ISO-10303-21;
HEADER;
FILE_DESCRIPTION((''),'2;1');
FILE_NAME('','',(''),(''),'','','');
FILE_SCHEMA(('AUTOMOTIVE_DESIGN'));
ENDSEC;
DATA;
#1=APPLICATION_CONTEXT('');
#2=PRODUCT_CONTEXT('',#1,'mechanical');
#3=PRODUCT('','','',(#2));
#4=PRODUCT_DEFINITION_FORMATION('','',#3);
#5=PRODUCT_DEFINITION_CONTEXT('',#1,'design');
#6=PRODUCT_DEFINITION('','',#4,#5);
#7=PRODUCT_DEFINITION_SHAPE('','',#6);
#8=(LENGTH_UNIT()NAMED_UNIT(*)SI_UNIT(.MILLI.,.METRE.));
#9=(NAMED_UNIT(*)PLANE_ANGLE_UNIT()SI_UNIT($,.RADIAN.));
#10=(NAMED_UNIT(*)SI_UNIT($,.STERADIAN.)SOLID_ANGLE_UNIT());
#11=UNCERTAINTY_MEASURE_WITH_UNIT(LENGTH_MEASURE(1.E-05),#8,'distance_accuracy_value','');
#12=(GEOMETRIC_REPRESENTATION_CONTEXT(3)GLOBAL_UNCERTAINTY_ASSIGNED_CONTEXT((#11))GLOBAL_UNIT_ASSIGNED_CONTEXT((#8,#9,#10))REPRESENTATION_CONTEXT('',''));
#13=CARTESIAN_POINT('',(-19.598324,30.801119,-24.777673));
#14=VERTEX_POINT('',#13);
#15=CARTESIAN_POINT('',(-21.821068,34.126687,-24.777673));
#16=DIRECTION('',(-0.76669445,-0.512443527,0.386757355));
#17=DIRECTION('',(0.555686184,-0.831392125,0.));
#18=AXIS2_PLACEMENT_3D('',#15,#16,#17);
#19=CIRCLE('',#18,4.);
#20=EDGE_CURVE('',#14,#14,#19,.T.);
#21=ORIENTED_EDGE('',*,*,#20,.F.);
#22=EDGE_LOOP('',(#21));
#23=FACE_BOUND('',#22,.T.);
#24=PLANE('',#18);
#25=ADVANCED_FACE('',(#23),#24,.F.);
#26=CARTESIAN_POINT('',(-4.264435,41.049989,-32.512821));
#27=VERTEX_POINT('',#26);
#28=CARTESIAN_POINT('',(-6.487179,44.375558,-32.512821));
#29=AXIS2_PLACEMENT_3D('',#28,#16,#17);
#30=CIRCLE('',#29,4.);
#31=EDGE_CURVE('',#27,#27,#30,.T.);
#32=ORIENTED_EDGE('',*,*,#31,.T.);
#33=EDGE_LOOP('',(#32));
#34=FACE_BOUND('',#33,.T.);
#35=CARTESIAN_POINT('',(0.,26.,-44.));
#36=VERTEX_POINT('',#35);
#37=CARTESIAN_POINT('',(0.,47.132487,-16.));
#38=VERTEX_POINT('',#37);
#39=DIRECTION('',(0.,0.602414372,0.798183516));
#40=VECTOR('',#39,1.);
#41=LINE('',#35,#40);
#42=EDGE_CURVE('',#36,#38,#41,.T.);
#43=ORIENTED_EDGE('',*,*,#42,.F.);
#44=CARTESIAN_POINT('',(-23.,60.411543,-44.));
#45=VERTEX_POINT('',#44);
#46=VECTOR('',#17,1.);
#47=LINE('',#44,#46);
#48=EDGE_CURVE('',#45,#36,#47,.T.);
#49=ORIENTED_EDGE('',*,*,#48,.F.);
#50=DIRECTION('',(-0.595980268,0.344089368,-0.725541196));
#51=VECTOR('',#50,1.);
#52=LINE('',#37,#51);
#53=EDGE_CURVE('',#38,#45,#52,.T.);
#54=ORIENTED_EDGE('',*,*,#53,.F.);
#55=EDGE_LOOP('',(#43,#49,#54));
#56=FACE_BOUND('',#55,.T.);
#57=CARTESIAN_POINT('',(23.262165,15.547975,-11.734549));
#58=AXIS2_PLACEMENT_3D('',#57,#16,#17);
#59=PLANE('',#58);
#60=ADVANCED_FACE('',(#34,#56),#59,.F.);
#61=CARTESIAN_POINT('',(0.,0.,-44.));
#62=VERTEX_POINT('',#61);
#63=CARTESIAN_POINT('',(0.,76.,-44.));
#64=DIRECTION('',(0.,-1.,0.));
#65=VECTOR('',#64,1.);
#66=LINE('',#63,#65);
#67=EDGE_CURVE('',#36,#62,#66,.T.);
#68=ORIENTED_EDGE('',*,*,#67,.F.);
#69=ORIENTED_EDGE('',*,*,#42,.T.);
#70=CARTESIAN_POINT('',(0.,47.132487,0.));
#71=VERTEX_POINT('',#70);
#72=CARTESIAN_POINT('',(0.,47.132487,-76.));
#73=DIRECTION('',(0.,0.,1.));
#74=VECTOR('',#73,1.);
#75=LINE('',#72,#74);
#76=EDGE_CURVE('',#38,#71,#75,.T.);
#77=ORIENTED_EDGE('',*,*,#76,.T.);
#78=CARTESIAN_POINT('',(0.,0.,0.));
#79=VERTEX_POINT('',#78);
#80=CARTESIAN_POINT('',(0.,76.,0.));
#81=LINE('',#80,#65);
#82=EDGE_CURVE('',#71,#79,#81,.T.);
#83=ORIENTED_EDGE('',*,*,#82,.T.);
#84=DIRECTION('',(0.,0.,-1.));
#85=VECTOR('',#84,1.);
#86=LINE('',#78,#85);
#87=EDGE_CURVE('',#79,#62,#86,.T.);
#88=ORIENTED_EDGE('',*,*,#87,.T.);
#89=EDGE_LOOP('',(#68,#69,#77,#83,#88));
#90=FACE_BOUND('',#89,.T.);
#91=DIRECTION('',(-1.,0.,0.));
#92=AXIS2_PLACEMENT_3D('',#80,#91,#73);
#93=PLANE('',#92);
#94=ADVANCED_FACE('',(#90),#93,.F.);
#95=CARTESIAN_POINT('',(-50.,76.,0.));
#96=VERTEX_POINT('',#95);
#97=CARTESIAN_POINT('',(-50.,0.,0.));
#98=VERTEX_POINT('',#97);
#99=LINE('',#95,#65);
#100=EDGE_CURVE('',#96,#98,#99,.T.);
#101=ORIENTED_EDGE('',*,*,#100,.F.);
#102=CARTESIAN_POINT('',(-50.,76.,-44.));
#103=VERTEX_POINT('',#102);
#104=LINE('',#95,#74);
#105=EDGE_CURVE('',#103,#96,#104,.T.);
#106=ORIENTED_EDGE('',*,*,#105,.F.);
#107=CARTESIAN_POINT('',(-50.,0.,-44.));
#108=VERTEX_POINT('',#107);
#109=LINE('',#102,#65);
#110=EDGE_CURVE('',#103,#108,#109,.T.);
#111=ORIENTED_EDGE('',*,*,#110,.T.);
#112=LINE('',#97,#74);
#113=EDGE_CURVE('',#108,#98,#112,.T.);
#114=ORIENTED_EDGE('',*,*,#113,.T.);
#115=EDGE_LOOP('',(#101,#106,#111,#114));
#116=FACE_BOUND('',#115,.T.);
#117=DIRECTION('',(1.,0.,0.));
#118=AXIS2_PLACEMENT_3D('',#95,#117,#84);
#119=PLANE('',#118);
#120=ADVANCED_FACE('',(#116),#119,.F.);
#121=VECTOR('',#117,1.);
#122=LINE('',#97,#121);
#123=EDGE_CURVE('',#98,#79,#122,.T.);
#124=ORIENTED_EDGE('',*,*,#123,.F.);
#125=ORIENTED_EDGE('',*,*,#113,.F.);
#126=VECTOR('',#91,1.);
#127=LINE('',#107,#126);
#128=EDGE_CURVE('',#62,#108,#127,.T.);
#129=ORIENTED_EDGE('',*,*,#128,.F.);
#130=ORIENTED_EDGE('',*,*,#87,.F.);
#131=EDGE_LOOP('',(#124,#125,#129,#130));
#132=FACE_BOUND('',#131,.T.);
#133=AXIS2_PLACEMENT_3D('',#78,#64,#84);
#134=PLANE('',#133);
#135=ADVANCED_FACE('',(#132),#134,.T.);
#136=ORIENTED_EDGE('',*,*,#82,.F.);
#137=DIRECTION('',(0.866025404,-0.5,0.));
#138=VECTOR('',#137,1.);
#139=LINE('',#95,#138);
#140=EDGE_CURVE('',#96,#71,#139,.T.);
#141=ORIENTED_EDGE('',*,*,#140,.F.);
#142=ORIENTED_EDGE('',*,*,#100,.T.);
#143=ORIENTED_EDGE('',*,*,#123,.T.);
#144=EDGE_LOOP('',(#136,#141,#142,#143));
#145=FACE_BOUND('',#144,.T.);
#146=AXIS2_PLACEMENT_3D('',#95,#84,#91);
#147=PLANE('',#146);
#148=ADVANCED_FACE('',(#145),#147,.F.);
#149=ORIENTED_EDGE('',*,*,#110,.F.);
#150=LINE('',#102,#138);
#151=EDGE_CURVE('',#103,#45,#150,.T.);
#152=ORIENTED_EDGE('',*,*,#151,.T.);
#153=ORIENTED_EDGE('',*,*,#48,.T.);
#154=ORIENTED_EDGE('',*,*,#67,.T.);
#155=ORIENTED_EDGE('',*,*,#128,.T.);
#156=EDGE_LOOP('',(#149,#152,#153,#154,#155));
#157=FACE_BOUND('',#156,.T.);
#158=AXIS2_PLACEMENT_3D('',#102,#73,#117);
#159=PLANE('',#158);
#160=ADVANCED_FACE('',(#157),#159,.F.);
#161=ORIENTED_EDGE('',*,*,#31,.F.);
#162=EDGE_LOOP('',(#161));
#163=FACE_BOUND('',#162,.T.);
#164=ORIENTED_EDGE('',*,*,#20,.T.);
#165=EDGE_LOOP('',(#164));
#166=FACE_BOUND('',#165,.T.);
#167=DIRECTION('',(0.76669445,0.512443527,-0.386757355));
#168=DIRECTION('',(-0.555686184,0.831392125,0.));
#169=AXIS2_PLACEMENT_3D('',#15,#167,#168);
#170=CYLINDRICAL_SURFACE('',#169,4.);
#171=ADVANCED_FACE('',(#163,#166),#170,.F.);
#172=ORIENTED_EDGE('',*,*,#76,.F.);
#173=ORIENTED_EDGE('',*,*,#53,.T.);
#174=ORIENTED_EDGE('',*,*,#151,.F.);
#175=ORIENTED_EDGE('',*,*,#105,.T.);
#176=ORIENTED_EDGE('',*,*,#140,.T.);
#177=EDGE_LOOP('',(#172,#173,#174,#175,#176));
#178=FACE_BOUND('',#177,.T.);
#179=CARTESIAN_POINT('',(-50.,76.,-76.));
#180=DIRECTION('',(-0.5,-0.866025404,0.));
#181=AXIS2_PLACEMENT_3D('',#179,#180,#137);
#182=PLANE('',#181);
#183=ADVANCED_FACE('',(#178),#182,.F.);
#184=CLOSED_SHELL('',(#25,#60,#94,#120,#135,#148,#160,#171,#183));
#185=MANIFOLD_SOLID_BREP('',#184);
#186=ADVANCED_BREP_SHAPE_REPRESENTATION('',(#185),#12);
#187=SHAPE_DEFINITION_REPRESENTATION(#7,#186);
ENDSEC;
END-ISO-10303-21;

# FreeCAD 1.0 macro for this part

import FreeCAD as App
import Part
import Sketcher

V = App.Vector
Q = App.Units.Quantity


def add_polygon(sketch, points):
    """Adds a closed chain of lines whose ends are joined by coincident constraints."""
    first, n = sketch.GeometryCount, len(points)
    for a, b in zip(points, points[1:] + points[:1]):
        sketch.addGeometry(Part.LineSegment(App.Vector(*a, 0), App.Vector(*b, 0)), False)
    for i in range(n):
        sketch.addConstraint(Sketcher.Constraint("Coincident", first + i, 2, first + (i + 1) % n, 1))

doc = App.newDocument("Part")
body = doc.addObject("PartDesign::Body", "Body")

# Sketch on XZ plane
sketch1 = body.newObject("Sketcher::SketchObject", "Sketch")
sketch1.AttachmentSupport = (doc.getObject("XZ_Plane"), [""])
sketch1.MapMode = "FlatFace"
add_polygon(sketch1, [(-50, -44), (-50, 0), (0, 0), (0, -44)])  # lines 0-3
sketch1.addConstraint([
    Sketcher.Constraint("Vertical", 0),
    Sketcher.Constraint("Horizontal", 1),
    Sketcher.Constraint("Vertical", 2),
    Sketcher.Constraint("Horizontal", 3),
    Sketcher.Constraint("Coincident", 1, 2, -1, 1),
    Sketcher.Constraint("DistanceX", 1, 1, 1, 2, 50.0),
    Sketcher.Constraint("DistanceY", 0, 1, 0, 2, 44.0),
])
pad1 = body.newObject("PartDesign::Pad", "Pad")
pad1.Profile = sketch1
pad1.Length = 76
pad1.Reversed = True

# Sketch on XY plane
sketch2 = body.newObject("Sketcher::SketchObject", "Sketch001")
sketch2.AttachmentSupport = (doc.getObject("XY_Plane"), [""])
sketch2.MapMode = "FlatFace"
add_polygon(sketch2, [(-50, 76), (0, 47), (0, 76)])  # lines 0-2
sketch2.addConstraint([
    Sketcher.Constraint("Vertical", 1),
    Sketcher.Constraint("Horizontal", 2),
    Sketcher.Constraint("PointOnObject", 0, 2, -2),
    Sketcher.Constraint("DistanceX", 2, 2, 2, 1, 50.0),
    Sketcher.Constraint("Angle", 0, Q("-30 deg")),
    Sketcher.Constraint("DistanceY", -1, 1, 1, 2, 76.0),
])
pocket1 = body.newObject("PartDesign::Pocket", "Pocket")
pocket1.Profile = sketch2
pocket1.Length = 76

# Sketch on an angled plane
sketch3 = body.newObject("Sketcher::SketchObject", "Sketch002")
sketch3.Placement = App.Placement(V(23.262165, 15.547975, -11.734549), App.Rotation(V(0.321547019, 0.214915719, 0.922181516), V(-0.555686184, 0.831392125, 0), V(-0.76669445, -0.512443527, 0.386757355), "ZXY"))
add_polygon(sketch3, [(-5, 39), (-35, 63), (-35, 22)])  # lines 0-2
sketch3.addConstraint([
    Sketcher.Constraint("Vertical", 1),
    Sketcher.Constraint("Distance", 0, 38.591882),
    Sketcher.Constraint("DistanceY", 1, 2, 1, 1, 41.390268),
    Sketcher.Constraint("DistanceX", 0, 2, -1, 1, 34.988178),
    Sketcher.Constraint("DistanceY", -1, 1, 2, 2, 39.185578),
    Sketcher.Constraint("Distance", 2, 35.079652),
])
pocket2 = body.newObject("PartDesign::Pocket", "Pocket001")
pocket2.Profile = sketch3
pocket2.Length = 76

# Sketch on an angled plane
sketch4 = body.newObject("Sketcher::SketchObject", "Sketch003")
sketch4.Placement = App.Placement(V(23.262165, 15.547975, -11.734549), App.Rotation(V(0.321547019, 0.214915719, 0.922181516), V(-0.555686184, 0.831392125, 0), V(-0.76669445, -0.512443527, 0.386757355), "ZXY"))
sketch4.addGeometry(Part.Circle(V(-22.5, 40.5, 0), V(0, 0, 1), 4), False)
sketch4.addConstraint([
    Sketcher.Constraint("Diameter", 0, 8.0),
    Sketcher.Constraint("DistanceX", 0, 3, -1, 1, 22.53165),
    Sketcher.Constraint("DistanceY", -1, 1, 0, 3, 40.498325),
])
pocket3 = body.newObject("PartDesign::Pocket", "Pocket002")
pocket3.Profile = sketch4
pocket3.Length = 20
pocket3.Reversed = True

doc.recompute()
